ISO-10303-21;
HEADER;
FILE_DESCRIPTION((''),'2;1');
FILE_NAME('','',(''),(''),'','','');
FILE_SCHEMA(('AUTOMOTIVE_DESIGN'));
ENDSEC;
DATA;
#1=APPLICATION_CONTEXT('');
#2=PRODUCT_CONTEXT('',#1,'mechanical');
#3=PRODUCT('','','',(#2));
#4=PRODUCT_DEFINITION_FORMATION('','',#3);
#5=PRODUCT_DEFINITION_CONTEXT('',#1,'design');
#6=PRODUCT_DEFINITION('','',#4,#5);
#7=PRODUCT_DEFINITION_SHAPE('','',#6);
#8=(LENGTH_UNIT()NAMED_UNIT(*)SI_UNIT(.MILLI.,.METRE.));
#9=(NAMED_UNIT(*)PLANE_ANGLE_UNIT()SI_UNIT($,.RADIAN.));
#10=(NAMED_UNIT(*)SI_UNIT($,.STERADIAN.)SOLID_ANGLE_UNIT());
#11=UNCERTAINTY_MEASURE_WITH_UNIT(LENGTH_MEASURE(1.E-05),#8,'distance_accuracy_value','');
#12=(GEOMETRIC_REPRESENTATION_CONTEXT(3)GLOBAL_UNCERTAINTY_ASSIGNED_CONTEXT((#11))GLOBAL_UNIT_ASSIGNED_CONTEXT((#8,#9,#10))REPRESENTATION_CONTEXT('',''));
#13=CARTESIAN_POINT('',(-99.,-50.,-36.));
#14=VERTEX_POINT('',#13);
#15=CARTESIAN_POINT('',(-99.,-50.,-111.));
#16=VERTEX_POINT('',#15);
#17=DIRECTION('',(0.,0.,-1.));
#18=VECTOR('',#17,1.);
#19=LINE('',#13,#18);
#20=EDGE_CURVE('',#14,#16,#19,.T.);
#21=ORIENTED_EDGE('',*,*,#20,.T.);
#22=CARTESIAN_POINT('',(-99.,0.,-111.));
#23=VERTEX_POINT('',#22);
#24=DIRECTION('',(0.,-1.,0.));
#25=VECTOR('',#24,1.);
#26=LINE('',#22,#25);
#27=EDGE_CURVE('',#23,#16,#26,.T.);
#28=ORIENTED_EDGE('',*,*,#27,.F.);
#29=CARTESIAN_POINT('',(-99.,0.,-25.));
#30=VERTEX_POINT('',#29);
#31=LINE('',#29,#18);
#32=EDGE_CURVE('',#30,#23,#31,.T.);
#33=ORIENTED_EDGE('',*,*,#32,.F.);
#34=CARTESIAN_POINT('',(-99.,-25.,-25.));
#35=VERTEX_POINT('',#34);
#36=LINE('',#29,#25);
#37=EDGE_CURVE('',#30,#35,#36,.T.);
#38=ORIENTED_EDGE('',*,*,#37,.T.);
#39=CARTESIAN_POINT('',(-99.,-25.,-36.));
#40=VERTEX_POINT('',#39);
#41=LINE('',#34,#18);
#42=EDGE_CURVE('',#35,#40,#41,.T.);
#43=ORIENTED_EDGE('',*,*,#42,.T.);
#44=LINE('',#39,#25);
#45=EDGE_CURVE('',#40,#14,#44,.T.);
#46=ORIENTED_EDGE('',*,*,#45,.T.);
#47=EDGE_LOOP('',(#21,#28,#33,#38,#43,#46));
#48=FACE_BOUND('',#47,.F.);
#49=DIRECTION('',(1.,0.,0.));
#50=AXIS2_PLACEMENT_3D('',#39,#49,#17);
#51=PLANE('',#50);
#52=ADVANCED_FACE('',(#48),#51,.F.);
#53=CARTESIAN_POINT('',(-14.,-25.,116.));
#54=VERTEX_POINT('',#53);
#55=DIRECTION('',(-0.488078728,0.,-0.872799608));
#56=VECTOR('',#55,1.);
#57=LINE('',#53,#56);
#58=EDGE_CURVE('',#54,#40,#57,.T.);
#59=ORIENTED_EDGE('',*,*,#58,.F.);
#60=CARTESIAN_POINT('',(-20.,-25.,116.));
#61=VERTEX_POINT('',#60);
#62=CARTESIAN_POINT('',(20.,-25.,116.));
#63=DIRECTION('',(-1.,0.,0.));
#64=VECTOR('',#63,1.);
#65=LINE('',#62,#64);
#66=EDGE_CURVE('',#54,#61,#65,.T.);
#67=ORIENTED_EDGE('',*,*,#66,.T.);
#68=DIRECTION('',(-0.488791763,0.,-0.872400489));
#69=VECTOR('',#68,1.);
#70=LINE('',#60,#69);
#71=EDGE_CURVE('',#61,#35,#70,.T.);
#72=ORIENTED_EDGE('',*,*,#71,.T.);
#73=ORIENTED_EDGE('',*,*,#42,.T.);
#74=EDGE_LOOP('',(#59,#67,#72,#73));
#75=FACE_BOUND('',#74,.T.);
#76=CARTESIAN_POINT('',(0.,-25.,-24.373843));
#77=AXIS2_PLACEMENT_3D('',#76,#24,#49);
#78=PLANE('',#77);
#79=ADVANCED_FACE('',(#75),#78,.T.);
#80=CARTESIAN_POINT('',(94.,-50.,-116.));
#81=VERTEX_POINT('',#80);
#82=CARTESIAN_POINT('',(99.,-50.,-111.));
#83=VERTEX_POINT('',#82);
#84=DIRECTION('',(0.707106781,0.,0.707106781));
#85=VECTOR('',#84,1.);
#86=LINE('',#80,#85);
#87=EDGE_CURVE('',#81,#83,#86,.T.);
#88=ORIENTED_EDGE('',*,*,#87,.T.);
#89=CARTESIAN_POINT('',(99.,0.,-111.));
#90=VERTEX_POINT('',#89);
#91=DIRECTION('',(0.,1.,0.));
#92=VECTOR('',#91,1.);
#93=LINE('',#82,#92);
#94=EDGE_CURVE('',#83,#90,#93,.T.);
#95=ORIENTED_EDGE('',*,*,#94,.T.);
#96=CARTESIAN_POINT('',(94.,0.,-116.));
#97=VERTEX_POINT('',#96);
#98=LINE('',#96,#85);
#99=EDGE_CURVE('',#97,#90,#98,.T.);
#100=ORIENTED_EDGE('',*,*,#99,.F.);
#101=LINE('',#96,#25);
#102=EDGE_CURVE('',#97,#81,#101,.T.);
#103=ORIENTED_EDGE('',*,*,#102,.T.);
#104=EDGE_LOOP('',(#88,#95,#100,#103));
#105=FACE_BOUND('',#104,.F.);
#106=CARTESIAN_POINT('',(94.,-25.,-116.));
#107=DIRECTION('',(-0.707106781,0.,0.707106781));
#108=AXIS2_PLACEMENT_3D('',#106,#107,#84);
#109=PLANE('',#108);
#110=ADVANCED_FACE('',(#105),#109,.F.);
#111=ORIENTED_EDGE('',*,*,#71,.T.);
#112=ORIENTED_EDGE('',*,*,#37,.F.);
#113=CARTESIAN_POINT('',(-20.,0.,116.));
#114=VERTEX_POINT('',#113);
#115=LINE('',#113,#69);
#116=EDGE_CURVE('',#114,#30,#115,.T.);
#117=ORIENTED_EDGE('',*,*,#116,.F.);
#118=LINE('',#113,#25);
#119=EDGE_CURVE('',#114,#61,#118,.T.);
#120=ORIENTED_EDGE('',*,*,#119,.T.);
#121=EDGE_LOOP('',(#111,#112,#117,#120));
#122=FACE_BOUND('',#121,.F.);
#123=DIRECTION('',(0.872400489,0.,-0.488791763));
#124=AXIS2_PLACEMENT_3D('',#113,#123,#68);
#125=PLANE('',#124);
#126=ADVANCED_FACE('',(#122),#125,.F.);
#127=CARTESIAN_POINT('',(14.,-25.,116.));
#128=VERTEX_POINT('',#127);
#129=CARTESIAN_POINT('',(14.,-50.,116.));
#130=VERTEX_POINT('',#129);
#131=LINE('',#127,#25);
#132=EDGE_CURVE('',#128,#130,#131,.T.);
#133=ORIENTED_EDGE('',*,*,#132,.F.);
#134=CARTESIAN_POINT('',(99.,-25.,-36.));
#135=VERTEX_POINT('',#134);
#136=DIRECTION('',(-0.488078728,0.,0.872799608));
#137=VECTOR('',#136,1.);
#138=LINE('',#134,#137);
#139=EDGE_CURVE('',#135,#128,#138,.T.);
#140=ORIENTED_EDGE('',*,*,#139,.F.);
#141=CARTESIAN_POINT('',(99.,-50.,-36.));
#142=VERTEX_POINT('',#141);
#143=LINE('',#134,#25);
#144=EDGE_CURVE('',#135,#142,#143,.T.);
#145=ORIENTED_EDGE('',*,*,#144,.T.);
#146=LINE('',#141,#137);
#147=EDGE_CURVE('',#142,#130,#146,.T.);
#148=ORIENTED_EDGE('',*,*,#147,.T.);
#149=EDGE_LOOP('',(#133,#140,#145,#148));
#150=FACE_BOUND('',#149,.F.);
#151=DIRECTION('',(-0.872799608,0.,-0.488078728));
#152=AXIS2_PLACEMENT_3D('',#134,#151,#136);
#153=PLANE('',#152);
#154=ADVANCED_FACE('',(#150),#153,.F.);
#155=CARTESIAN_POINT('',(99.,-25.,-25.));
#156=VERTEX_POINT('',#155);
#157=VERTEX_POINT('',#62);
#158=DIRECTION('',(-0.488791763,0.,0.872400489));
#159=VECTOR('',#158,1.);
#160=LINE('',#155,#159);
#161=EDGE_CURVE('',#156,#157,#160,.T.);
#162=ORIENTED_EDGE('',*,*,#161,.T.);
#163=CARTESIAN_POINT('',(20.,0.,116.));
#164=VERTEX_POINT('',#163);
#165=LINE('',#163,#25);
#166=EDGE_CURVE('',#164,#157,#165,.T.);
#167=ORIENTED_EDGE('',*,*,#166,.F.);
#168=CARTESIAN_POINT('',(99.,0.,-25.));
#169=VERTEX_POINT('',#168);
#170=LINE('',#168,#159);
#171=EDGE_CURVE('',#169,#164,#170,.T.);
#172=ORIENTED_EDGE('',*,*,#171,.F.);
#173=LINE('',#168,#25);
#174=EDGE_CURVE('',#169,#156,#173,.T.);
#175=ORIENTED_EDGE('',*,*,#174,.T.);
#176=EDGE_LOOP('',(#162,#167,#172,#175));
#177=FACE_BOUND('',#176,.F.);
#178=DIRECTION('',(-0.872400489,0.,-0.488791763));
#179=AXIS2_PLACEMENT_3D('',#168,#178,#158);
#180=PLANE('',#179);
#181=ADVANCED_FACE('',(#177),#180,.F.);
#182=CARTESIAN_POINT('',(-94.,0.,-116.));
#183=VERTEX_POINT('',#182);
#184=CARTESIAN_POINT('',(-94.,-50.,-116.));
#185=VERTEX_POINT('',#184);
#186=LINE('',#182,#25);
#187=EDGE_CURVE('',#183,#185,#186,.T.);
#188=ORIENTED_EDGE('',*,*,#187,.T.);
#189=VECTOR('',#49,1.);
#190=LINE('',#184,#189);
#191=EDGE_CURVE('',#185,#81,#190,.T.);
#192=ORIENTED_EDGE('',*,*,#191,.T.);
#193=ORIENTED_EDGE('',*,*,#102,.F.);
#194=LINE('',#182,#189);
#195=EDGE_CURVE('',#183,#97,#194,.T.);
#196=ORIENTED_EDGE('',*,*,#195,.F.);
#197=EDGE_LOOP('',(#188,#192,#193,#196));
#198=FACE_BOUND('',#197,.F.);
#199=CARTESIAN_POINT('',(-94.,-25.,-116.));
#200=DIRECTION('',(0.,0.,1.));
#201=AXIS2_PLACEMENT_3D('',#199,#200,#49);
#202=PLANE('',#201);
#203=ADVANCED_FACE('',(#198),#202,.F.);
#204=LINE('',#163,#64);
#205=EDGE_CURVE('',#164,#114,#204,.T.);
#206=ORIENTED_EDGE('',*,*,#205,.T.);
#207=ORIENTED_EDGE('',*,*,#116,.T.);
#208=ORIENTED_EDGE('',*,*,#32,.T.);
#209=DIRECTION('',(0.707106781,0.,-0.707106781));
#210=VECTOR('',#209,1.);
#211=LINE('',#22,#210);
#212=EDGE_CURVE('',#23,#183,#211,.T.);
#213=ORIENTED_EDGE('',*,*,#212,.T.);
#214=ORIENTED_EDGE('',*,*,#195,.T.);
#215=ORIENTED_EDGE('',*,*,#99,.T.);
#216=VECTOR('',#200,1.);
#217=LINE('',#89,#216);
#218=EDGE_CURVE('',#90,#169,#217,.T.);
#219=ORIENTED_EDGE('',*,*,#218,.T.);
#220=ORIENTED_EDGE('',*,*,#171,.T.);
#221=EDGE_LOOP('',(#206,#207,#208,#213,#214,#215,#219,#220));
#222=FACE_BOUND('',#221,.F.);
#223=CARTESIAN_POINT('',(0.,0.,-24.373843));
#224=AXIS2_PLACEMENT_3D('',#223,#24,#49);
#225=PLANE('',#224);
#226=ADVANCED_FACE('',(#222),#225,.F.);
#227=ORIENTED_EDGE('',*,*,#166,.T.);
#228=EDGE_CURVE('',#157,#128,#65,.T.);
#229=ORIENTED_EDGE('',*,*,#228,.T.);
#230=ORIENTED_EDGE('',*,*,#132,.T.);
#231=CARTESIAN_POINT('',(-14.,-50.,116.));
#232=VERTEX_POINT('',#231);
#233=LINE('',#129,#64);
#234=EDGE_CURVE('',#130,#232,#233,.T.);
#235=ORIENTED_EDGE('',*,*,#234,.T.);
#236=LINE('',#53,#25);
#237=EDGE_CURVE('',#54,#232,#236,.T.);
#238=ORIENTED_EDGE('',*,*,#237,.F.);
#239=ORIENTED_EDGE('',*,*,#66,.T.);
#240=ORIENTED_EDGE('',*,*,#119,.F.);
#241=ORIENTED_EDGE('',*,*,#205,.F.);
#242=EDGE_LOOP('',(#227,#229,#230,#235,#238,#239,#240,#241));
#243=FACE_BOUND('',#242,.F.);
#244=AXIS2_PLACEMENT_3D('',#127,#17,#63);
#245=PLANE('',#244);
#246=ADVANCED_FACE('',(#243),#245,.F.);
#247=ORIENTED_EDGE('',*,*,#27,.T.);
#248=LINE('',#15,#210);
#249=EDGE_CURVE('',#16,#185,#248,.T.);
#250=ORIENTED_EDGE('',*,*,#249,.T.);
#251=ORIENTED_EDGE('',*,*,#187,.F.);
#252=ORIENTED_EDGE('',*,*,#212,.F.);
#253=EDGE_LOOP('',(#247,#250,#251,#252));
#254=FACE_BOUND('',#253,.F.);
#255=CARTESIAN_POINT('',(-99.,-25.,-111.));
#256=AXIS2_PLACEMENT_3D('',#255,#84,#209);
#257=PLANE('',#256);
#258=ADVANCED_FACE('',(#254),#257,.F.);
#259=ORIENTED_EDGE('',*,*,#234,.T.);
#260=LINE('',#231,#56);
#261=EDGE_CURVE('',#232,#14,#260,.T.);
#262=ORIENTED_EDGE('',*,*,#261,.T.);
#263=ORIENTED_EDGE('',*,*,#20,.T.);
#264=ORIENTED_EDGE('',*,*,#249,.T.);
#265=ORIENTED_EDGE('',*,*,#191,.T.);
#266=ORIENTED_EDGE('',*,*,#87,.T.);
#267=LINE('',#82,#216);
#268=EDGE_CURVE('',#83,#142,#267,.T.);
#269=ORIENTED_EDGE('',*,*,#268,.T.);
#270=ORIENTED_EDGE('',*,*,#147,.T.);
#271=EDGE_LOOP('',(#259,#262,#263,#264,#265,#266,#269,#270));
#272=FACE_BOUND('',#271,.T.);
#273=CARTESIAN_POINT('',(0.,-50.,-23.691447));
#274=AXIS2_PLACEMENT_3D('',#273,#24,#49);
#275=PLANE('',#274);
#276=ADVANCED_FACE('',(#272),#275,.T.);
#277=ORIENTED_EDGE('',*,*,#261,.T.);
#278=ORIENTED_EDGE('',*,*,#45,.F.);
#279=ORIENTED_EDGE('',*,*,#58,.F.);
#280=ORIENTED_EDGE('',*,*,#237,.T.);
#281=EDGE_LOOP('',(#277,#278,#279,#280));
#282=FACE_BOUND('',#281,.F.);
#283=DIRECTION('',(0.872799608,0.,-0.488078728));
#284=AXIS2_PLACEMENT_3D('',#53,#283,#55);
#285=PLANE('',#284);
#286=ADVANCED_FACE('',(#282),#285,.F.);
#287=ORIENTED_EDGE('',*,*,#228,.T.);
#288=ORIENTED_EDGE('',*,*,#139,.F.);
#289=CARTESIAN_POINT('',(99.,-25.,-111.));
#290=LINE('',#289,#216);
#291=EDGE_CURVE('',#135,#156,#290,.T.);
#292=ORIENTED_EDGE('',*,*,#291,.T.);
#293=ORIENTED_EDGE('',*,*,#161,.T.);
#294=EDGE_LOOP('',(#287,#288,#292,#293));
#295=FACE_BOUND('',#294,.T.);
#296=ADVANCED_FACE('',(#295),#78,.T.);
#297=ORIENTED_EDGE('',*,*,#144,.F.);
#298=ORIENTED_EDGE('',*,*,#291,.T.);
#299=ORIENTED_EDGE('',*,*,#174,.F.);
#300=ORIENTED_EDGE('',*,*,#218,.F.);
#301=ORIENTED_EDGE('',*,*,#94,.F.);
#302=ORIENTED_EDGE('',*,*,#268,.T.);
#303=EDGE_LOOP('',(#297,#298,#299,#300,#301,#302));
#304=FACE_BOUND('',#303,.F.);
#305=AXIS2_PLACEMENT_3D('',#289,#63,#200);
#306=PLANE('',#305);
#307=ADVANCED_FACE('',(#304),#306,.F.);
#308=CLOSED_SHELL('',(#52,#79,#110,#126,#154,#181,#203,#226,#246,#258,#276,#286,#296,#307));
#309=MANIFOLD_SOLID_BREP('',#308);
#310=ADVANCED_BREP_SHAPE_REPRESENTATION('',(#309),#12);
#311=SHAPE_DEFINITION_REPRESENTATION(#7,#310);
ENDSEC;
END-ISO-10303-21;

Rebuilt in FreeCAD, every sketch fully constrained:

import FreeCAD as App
import Part
import Sketcher
from FreeCAD import Vector

doc = App.newDocument("Part")
body = doc.addObject("PartDesign::Body", "Body")

# Sketch on XZ plane
sketch1 = body.newObject("Sketcher::SketchObject", "Sketch")
sketch1.AttachmentSupport = (doc.getObject("XZ_Plane"), [""])
sketch1.MapMode = "FlatFace"
sketch1.addGeometry(Part.LineSegment(Vector(-94, -116, 0), Vector(94, -116, 0)), False)
sketch1.addGeometry(Part.LineSegment(Vector(94, -116, 0), Vector(99, -111, 0)), False)
sketch1.addGeometry(Part.LineSegment(Vector(99, -111, 0), Vector(99, -25, 0)), False)
sketch1.addGeometry(Part.LineSegment(Vector(99, -25, 0), Vector(20, 116, 0)), False)
sketch1.addGeometry(Part.LineSegment(Vector(20, 116, 0), Vector(-20, 116, 0)), False)
sketch1.addGeometry(Part.LineSegment(Vector(-20, 116, 0), Vector(-99, -25, 0)), False)
sketch1.addGeometry(Part.LineSegment(Vector(-99, -25, 0), Vector(-99, -111, 0)), False)
sketch1.addGeometry(Part.LineSegment(Vector(-99, -111, 0), Vector(-94, -116, 0)), False)
sketch1.addConstraint(Sketcher.Constraint("Coincident", 0, 2, 1, 1))
sketch1.addConstraint(Sketcher.Constraint("Coincident", 1, 2, 2, 1))
sketch1.addConstraint(Sketcher.Constraint("Coincident", 2, 2, 3, 1))
sketch1.addConstraint(Sketcher.Constraint("Coincident", 3, 2, 4, 1))
sketch1.addConstraint(Sketcher.Constraint("Coincident", 4, 2, 5, 1))
sketch1.addConstraint(Sketcher.Constraint("Coincident", 5, 2, 6, 1))
sketch1.addConstraint(Sketcher.Constraint("Coincident", 6, 2, 7, 1))
sketch1.addConstraint(Sketcher.Constraint("Coincident", 7, 2, 0, 1))
sketch1.addConstraint(Sketcher.Constraint("Horizontal", 0))
sketch1.addConstraint(Sketcher.Constraint("Vertical", 2))
sketch1.addConstraint(Sketcher.Constraint("Horizontal", 4))
sketch1.addConstraint(Sketcher.Constraint("Vertical", 6))
sketch1.addConstraint(Sketcher.Constraint("Symmetric", 2, 2, 5, 2, -2))
sketch1.addConstraint(Sketcher.Constraint("Perpendicular", 1, 7))
sketch1.addConstraint(Sketcher.Constraint("Horizontal", 1, 2, 6, 2))
sketch1.addConstraint(Sketcher.Constraint("Equal", 3, 5))
sketch1.addConstraint(Sketcher.Constraint("Equal", 1, 7))
sketch1.addConstraint(Sketcher.Constraint("DistanceX", 0, 1, 0, 2, 188.0))
sketch1.addConstraint(Sketcher.Constraint("DistanceX", 4, 2, 4, 1, 40.0))
sketch1.addConstraint(Sketcher.Constraint("DistanceY", 2, 1, 2, 2, 86.0))
sketch1.addConstraint(Sketcher.Constraint("DistanceY", 0, 2, -1, 1, 116.0))
sketch1.addConstraint(Sketcher.Constraint("DistanceX", -1, 1, 1, 2, 99.0))
sketch1.addConstraint(Sketcher.Constraint("DistanceY", -1, 1, 3, 2, 116.0))
pad1 = body.newObject("PartDesign::Pad", "Pad")
pad1.Profile = sketch1
pad1.Length = 25

# Sketch on XZ plane
sketch2 = body.newObject("Sketcher::SketchObject", "Sketch001")
sketch2.AttachmentSupport = (doc.getObject("XZ_Plane"), [""])
sketch2.MapMode = "FlatFace"
sketch2.AttachmentOffset = App.Placement(Vector(0, 0, 25), App.Rotation())
sketch2.addGeometry(Part.LineSegment(Vector(14, 116, 0), Vector(-14, 116, 0)), False)
sketch2.addGeometry(Part.LineSegment(Vector(-14, 116, 0), Vector(-99, -36, 0)), False)
sketch2.addGeometry(Part.LineSegment(Vector(-99, -36, 0), Vector(-99, -111, 0)), False)
sketch2.addGeometry(Part.LineSegment(Vector(-99, -111, 0), Vector(-94, -116, 0)), False)
sketch2.addGeometry(Part.LineSegment(Vector(-94, -116, 0), Vector(94, -116, 0)), False)
sketch2.addGeometry(Part.LineSegment(Vector(94, -116, 0), Vector(99, -111, 0)), False)
sketch2.addGeometry(Part.LineSegment(Vector(99, -111, 0), Vector(99, -36, 0)), False)
sketch2.addGeometry(Part.LineSegment(Vector(99, -36, 0), Vector(14, 116, 0)), False)
sketch2.addConstraint(Sketcher.Constraint("Coincident", 0, 2, 1, 1))
sketch2.addConstraint(Sketcher.Constraint("Coincident", 1, 2, 2, 1))
sketch2.addConstraint(Sketcher.Constraint("Coincident", 2, 2, 3, 1))
sketch2.addConstraint(Sketcher.Constraint("Coincident", 3, 2, 4, 1))
sketch2.addConstraint(Sketcher.Constraint("Coincident", 4, 2, 5, 1))
sketch2.addConstraint(Sketcher.Constraint("Coincident", 5, 2, 6, 1))
sketch2.addConstraint(Sketcher.Constraint("Coincident", 6, 2, 7, 1))
sketch2.addConstraint(Sketcher.Constraint("Coincident", 7, 2, 0, 1))
sketch2.addConstraint(Sketcher.Constraint("Horizontal", 0))
sketch2.addConstraint(Sketcher.Constraint("Vertical", 2))
sketch2.addConstraint(Sketcher.Constraint("Horizontal", 4))
sketch2.addConstraint(Sketcher.Constraint("Vertical", 6))
sketch2.addConstraint(Sketcher.Constraint("Symmetric", 2, 2, 5, 2, -2))
sketch2.addConstraint(Sketcher.Constraint("Perpendicular", 3, 5))
sketch2.addConstraint(Sketcher.Constraint("Horizontal", 1, 2, 6, 2))
sketch2.addConstraint(Sketcher.Constraint("Equal", 3, 5))
sketch2.addConstraint(Sketcher.Constraint("Equal", 1, 7))
sketch2.addConstraint(Sketcher.Constraint("DistanceX", 0, 2, 0, 1, 28.0))
sketch2.addConstraint(Sketcher.Constraint("DistanceX", 4, 1, 4, 2, 188.0))
sketch2.addConstraint(Sketcher.Constraint("DistanceY", 2, 2, 2, 1, 75.0))
sketch2.addConstraint(Sketcher.Constraint("DistanceY", -1, 1, 0, 2, 116.0))
sketch2.addConstraint(Sketcher.Constraint("DistanceX", 1, 2, -1, 1, 99.0))
sketch2.addConstraint(Sketcher.Constraint("DistanceY", 1, 2, -1, 1, 36.0))
pad2 = body.newObject("PartDesign::Pad", "Pad001")
pad2.Profile = sketch2
pad2.Length = 25

doc.recompute()
